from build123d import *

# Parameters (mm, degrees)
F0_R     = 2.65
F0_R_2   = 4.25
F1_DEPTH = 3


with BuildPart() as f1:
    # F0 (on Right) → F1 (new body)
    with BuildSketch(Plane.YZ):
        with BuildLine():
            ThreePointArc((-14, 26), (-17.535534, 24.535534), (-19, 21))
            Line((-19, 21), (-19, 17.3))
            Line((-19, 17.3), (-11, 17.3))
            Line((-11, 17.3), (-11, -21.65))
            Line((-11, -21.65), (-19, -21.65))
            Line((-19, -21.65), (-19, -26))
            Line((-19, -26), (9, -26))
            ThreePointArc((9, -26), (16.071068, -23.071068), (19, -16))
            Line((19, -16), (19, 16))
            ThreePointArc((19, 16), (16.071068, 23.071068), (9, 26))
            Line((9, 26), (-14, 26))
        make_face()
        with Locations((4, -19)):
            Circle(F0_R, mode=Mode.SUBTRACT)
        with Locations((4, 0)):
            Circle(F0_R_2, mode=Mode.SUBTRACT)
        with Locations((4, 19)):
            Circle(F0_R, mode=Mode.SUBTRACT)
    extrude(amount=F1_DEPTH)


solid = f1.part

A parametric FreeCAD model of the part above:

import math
import FreeCAD as App
import Part
import Sketcher

V = App.Vector
Q = App.Units.Quantity

doc = App.newDocument("Part")
body = doc.addObject("PartDesign::Body", "Body")

# Sketch on YZ plane
sketch1 = body.newObject("Sketcher::SketchObject", "Sketch")
sketch1.AttachmentSupport = (doc.getObject("YZ_Plane"), [""])
sketch1.MapMode = "FlatFace"
sketch1.addGeometry(Part.ArcOfCircle(Part.Circle(V(-14, 21, 0), V(0, 0, 1), 5), math.radians(90), math.radians(180)), False)
sketch1.addGeometry(Part.LineSegment(V(-19, 21, 0), V(-19, 17.3, 0)), False)
sketch1.addGeometry(Part.LineSegment(V(-19, 17.3, 0), V(-11, 17.3, 0)), False)
sketch1.addGeometry(Part.LineSegment(V(-11, 17.3, 0), V(-11, -21.6, 0)), False)
sketch1.addGeometry(Part.LineSegment(V(-11, -21.6, 0), V(-19, -21.6, 0)), False)
sketch1.addGeometry(Part.LineSegment(V(-19, -21.6, 0), V(-19, -26, 0)), False)
sketch1.addGeometry(Part.LineSegment(V(-19, -26, 0), V(9, -26, 0)), False)
sketch1.addGeometry(Part.ArcOfCircle(Part.Circle(V(9, -16, 0), V(0, 0, 1), 10), math.radians(-90), math.radians(0)), False)
sketch1.addGeometry(Part.LineSegment(V(19, -16, 0), V(19, 16, 0)), False)
sketch1.addGeometry(Part.ArcOfCircle(Part.Circle(V(9, 16, 0), V(0, 0, 1), 10), math.radians(0), math.radians(90)), False)
sketch1.addGeometry(Part.LineSegment(V(9, 26, 0), V(-14, 26, 0)), False)
sketch1.addGeometry(Part.Circle(V(4, -19, 0), V(0, 0, 1), 2.6), False)
sketch1.addGeometry(Part.Circle(V(4, 0, 0), V(0, 0, 1), 4.2), False)
sketch1.addGeometry(Part.Circle(V(4, 19, 0), V(0, 0, 1), 2.6), False)
sketch1.addConstraint(Sketcher.Constraint("Tangent", 0, 2, 1, 1))
sketch1.addConstraint(Sketcher.Constraint("Coincident", 1, 2, 2, 1))
sketch1.addConstraint(Sketcher.Constraint("Coincident", 2, 2, 3, 1))
sketch1.addConstraint(Sketcher.Constraint("Coincident", 3, 2, 4, 1))
sketch1.addConstraint(Sketcher.Constraint("Coincident", 4, 2, 5, 1))
sketch1.addConstraint(Sketcher.Constraint("Coincident", 5, 2, 6, 1))
sketch1.addConstraint(Sketcher.Constraint("Tangent", 6, 2, 7, 1))
sketch1.addConstraint(Sketcher.Constraint("Tangent", 7, 2, 8, 1))
sketch1.addConstraint(Sketcher.Constraint("Tangent", 8, 2, 9, 1))
sketch1.addConstraint(Sketcher.Constraint("Tangent", 9, 2, 10, 1))
sketch1.addConstraint(Sketcher.Constraint("Tangent", 10, 2, 0, 1))
sketch1.addConstraint(Sketcher.Constraint("Vertical", 1))
sketch1.addConstraint(Sketcher.Constraint("Horizontal", 2))
sketch1.addConstraint(Sketcher.Constraint("Vertical", 3))
sketch1.addConstraint(Sketcher.Constraint("Horizontal", 4))
sketch1.addConstraint(Sketcher.Constraint("Vertical", 5))
sketch1.addConstraint(Sketcher.Constraint("Horizontal", 6))
sketch1.addConstraint(Sketcher.Constraint("Vertical", 8))
sketch1.addConstraint(Sketcher.Constraint("Horizontal", 10))
sketch1.addConstraint(Sketcher.Constraint("Equal", 7, 9))
sketch1.addConstraint(Sketcher.Constraint("Equal", 11, 13))
sketch1.addConstraint(Sketcher.Constraint("Symmetric", 11, 3, 13, 3, -1))
sketch1.addConstraint(Sketcher.Constraint("PointOnObject", 12, 3, -1))
sketch1.addConstraint(Sketcher.Constraint("Vertical", 11, 3, 12, 3))
sketch1.addConstraint(Sketcher.Constraint("Vertical", 1, 2, 4, 2))
sketch1.addConstraint(Sketcher.Constraint("Radius", 0, Q("5 mm")))
sketch1.addConstraint(Sketcher.Constraint("Radius", 7, Q("9.999999 mm")))
sketch1.addConstraint(Sketcher.Constraint("Diameter", 11, Q("5.3 mm")))
sketch1.addConstraint(Sketcher.Constraint("Diameter", 12, Q("8.5 mm")))
sketch1.addConstraint(Sketcher.Constraint("DistanceX", 2, 1, 2, 2, Q("8 mm")))
sketch1.addConstraint(Sketcher.Constraint("DistanceX", 6, 1, 6, 2, Q("28 mm")))
sketch1.addConstraint(Sketcher.Constraint("DistanceY", 8, 1, 8, 2, Q("32 mm")))
sketch1.addConstraint(Sketcher.Constraint("DistanceY", 1, 2, 1, 1, Q("3.7 mm")))
sketch1.addConstraint(Sketcher.Constraint("DistanceX", 0, 3, -1, 1, Q("14 mm")))
sketch1.addConstraint(Sketcher.Constraint("DistanceY", -1, 1, 0, 3, Q("21 mm")))
sketch1.addConstraint(Sketcher.Constraint("DistanceX", -1, 1, 11, 3, Q("4 mm")))
sketch1.addConstraint(Sketcher.Constraint("DistanceY", 11, 3, -1, 1, Q("19 mm")))
sketch1.addConstraint(Sketcher.Constraint("DistanceY", 3, 2, 3, 1, Q("38.95 mm")))
pad1 = body.newObject("PartDesign::Pad", "Pad")
pad1.Profile = sketch1
pad1.Length = 3

doc.recompute()
